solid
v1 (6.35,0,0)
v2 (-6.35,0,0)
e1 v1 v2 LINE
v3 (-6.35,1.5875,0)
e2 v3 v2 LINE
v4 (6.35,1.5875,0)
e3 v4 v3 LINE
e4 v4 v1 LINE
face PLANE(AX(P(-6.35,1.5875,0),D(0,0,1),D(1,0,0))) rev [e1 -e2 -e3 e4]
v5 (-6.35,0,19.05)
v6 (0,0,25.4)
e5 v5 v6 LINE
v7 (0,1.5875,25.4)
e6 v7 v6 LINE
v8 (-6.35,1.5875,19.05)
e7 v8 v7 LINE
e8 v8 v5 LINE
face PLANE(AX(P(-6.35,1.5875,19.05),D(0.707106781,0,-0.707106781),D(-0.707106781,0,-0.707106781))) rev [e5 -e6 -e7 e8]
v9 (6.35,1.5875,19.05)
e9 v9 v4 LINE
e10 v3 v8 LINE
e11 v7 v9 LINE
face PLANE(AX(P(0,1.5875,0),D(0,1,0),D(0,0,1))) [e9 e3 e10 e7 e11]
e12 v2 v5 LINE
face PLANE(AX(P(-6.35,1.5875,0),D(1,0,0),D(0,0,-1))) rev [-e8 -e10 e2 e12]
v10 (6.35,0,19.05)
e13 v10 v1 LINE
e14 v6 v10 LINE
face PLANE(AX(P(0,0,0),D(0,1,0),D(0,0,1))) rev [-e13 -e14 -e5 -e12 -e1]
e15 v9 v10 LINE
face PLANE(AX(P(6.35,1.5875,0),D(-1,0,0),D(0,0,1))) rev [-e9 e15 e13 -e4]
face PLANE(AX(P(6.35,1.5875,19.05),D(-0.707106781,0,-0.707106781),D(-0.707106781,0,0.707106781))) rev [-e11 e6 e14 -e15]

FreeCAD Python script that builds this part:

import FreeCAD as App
import Part
import Sketcher
Q = App.Units.Quantity

doc = App.newDocument("Part")
body = doc.addObject("PartDesign::Body", "Body")

# Sketch on XZ plane
sketch1 = body.newObject("Sketcher::SketchObject", "Sketch")
sketch1.AttachmentSupport = (doc.getObject("XZ_Plane"), [""])
sketch1.MapMode = "FlatFace"
sketch1.addGeometry([
    Part.LineSegment(App.Vector(6, 0, 0), App.Vector(-6, 0, 0)),  # 0
    Part.LineSegment(App.Vector(-6, 0, 0), App.Vector(-6, 19, 0)),  # 1
    Part.LineSegment(App.Vector(-6, 19, 0), App.Vector(0, 25, 0)),  # 2
    Part.LineSegment(App.Vector(0, 25, 0), App.Vector(6, 19, 0)),  # 3
    Part.LineSegment(App.Vector(6, 19, 0), App.Vector(6, 0, 0)),  # 4
], False)
sketch1.addConstraint([
    Sketcher.Constraint("Coincident", 0, 2, 1, 1),
    Sketcher.Constraint("Coincident", 1, 2, 2, 1),
    Sketcher.Constraint("Coincident", 2, 2, 3, 1),
    Sketcher.Constraint("Coincident", 3, 2, 4, 1),
    Sketcher.Constraint("Coincident", 4, 2, 0, 1),
    Sketcher.Constraint("Horizontal", 0),
    Sketcher.Constraint("Vertical", 1),
    Sketcher.Constraint("Vertical", 4),
    Sketcher.Constraint("Symmetric", 0, 2, 4, 2, -1, 1),
    Sketcher.Constraint("PointOnObject", 2, 2, -2),
    Sketcher.Constraint("Perpendicular", 2, 3),
    Sketcher.Constraint("Horizontal", 1, 2, 3, 2),
    Sketcher.Constraint("DistanceX", 0, 2, 0, 1, Q("0.5 in")),
    Sketcher.Constraint("DistanceY", -1, 1, 2, 2, Q("1 in")),
])
pad1 = body.newObject("PartDesign::Pad", "Pad")
pad1.Profile = sketch1
pad1.Length = Q("0.0625 in")
pad1.Reversed = True

doc.recompute()
